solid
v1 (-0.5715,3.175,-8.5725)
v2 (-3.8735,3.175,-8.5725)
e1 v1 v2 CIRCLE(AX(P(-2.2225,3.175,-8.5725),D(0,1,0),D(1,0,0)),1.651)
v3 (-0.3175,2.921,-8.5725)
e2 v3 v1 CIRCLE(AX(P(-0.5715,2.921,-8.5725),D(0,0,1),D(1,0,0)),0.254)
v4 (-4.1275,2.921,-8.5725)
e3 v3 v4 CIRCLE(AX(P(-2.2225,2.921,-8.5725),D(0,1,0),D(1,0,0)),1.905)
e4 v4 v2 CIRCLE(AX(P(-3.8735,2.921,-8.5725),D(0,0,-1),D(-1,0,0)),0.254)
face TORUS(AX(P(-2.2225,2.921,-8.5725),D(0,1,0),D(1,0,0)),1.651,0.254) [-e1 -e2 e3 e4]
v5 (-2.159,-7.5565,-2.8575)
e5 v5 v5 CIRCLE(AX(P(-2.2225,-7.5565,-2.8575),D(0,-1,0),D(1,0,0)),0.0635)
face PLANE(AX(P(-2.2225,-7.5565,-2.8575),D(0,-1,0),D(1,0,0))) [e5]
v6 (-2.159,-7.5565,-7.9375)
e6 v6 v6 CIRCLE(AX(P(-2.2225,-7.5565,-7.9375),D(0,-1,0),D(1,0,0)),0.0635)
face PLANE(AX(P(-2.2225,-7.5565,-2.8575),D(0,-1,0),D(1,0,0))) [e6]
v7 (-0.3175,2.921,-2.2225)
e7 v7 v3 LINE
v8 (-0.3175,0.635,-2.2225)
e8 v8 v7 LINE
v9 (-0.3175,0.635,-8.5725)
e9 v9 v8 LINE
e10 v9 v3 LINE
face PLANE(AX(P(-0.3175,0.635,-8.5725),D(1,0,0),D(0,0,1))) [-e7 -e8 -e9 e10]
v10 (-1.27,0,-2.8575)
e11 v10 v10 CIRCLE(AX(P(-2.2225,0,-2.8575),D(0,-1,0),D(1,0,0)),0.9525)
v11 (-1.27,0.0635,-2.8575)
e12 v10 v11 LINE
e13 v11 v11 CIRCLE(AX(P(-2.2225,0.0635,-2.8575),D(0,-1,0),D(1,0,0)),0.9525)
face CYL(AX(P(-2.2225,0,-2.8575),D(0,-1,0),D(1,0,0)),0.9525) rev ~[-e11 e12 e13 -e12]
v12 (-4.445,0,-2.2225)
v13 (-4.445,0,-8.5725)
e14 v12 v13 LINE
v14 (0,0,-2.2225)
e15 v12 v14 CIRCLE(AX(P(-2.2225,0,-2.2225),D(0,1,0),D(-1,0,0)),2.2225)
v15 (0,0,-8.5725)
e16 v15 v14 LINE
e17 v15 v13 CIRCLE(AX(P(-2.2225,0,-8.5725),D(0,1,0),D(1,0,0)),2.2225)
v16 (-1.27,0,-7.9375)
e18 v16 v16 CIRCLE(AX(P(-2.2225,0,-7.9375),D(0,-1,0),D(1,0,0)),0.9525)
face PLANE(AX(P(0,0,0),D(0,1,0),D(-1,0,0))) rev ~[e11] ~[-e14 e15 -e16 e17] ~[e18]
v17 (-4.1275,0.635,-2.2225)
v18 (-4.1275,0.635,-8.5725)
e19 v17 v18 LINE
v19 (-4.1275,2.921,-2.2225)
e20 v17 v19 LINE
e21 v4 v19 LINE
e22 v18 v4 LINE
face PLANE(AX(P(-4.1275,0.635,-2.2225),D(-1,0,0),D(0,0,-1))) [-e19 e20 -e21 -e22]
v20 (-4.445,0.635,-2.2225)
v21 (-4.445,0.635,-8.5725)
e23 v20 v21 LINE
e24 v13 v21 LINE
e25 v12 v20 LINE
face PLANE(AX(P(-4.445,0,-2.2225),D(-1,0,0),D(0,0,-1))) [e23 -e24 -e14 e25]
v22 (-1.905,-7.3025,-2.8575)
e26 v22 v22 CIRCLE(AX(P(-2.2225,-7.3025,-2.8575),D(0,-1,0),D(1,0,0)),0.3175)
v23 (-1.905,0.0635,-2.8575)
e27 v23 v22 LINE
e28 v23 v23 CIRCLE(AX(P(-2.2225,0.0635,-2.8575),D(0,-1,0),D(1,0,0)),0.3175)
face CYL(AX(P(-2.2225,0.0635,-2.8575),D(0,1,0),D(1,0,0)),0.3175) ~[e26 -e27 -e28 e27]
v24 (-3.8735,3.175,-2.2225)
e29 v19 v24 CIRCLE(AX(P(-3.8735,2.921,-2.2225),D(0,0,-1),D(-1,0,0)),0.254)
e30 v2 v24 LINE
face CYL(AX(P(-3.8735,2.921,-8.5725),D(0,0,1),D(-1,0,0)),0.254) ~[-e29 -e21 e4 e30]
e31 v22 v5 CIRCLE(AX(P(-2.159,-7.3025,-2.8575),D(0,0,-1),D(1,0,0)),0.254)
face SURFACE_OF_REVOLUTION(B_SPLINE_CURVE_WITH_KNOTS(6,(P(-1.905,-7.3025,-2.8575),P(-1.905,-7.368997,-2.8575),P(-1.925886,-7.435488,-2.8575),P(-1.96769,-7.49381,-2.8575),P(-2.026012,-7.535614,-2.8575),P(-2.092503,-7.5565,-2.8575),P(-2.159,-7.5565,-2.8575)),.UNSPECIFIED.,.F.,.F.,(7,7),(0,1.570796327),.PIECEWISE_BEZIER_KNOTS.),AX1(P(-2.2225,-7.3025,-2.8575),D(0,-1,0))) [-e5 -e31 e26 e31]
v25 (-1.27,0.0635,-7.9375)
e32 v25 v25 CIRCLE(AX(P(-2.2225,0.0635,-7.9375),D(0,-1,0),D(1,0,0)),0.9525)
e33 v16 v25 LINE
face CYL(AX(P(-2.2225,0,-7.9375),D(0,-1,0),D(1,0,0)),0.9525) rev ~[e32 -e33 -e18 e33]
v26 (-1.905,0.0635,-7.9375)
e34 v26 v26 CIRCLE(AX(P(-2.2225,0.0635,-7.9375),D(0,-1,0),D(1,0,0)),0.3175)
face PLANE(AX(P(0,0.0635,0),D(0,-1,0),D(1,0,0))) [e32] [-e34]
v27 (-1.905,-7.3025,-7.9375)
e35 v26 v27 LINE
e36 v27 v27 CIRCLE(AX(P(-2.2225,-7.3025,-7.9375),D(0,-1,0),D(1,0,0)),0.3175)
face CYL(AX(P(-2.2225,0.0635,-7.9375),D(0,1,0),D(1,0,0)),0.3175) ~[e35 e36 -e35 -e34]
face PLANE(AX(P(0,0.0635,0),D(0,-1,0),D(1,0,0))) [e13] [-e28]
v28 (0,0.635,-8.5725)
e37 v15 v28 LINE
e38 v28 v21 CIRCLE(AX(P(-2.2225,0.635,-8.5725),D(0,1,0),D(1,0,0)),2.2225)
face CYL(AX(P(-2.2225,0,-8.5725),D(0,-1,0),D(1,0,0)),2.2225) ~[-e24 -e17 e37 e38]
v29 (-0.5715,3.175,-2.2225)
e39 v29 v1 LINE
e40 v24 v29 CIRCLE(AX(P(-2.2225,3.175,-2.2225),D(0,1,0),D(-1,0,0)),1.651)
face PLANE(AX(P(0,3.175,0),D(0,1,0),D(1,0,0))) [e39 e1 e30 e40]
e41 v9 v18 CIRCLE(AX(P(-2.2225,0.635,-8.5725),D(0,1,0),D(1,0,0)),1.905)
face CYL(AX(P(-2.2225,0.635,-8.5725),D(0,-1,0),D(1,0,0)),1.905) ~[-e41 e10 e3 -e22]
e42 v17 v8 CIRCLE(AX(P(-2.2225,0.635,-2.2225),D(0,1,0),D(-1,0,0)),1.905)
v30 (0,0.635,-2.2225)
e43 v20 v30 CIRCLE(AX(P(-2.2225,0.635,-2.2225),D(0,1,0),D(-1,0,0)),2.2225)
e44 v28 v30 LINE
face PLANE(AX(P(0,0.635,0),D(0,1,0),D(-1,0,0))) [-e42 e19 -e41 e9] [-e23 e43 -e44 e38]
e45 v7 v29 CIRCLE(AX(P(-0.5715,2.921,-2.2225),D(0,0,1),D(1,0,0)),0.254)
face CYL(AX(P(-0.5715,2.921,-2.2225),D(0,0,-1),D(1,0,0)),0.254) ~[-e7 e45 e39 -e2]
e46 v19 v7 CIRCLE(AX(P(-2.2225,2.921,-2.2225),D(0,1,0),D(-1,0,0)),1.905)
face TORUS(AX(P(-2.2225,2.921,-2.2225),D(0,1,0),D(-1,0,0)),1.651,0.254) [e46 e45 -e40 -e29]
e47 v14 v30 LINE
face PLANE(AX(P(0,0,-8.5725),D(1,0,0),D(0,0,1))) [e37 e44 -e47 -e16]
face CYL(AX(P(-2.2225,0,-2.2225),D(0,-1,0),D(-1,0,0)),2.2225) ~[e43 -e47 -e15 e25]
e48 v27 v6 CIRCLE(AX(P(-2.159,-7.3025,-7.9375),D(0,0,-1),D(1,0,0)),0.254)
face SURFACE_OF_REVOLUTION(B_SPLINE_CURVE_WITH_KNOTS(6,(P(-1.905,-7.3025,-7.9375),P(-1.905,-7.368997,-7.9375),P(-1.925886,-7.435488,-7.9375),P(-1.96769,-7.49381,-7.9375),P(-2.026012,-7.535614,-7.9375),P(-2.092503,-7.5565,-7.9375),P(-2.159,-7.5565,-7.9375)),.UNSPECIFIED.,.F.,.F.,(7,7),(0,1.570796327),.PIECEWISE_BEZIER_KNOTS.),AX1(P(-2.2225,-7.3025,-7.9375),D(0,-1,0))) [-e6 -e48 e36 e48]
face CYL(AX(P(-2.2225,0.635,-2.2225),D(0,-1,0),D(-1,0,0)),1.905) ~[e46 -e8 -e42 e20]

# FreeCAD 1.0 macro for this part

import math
import FreeCAD as App
import Part
import Sketcher

V = App.Vector
Q = App.Units.Quantity


def edges_at(feature, points):
    """Names of the edges that pass closest to the given points."""
    edges = feature.Shape.Edges
    near = lambda p: min(range(len(edges)), key=lambda i: edges[i].distToShape(Part.Vertex(*p))[0])
    return sorted({f"Edge{near(p) + 1}" for p in points})

doc = App.newDocument("Part")
params = doc.addObject("Spreadsheet::Sheet", "Params")
for row, (alias, value) in enumerate([
    ("sketch1_height", "0.25 in"),
    ("pad1_length", "0.025 in"),
    ("sketch2_radius", "0.075 in"),
    ("sketch2_height", "0.25 in"),
    ("pad2_length", "0.1 in"),
    ("fillet_radius", "0.01 in"),
    ("sketch3_diameter", "0.075 in"),
    ("pocket1_length", "0.0025 in"),
    ("sketch4_diameter", "0.025 in"),
    ("pad3_length", "0.3 in"),
    ("fillet2_radius", "0.01 in"),
], start=1):
    params.set(f"A{row}", alias)
    params.set(f"B{row}", "=" + value)
    params.setAlias(f"B{row}", alias)

body = doc.addObject("PartDesign::Body", "Body")

# Sketch on XZ plane
sketch1 = doc.addObject("Sketcher::SketchObject", "Sketch")
body.addObject(sketch1)
sketch1.AttachmentSupport = (doc.XZ_Plane, [""])
sketch1.MapMode = "FlatFace"
sketch1.addGeometry(Part.LineSegment(V(-4.4, -8.6, 0), V(-4.4, -2.2, 0)), False)
sketch1.addGeometry(Part.ArcOfCircle(Part.Circle(V(-2.2, -2.2, 0), V(0, 0, 1), 2.2), math.radians(0), math.radians(180)), False)
sketch1.addGeometry(Part.LineSegment(V(0, -2.2, 0), V(0, -8.6, 0)), False)
sketch1.addGeometry(Part.ArcOfCircle(Part.Circle(V(-2.2, -8.6, 0), V(0, 0, 1), 2.2), math.radians(180), math.radians(360)), False)
sketch1.addConstraint(Sketcher.Constraint("Tangent", 0, 2, 1, 2))
sketch1.addConstraint(Sketcher.Constraint("Tangent", 1, 1, 2, 1))
sketch1.addConstraint(Sketcher.Constraint("Tangent", 2, 2, 3, 2))
sketch1.addConstraint(Sketcher.Constraint("Tangent", 3, 1, 0, 1))
sketch1.addConstraint(Sketcher.Constraint("Vertical", 0))
sketch1.addConstraint(Sketcher.Constraint("Vertical", 2))
sketch1.addConstraint(Sketcher.Constraint("PointOnObject", 1, 1, -2))
sketch1.addConstraint(Sketcher.Constraint("Radius", 1, Q("0.0875 in")))
sketch1.addConstraint(Sketcher.Constraint("DistanceY", 0, 1, 0, 2, Q("0.25 in")))
sketch1.addConstraint(Sketcher.Constraint("DistanceY", 1, 3, -1, 1, Q("0.0875 in")))
sketch1.setExpression("Constraints[8]", "Params.sketch1_height")
pad1 = doc.addObject("PartDesign::Pad", "Pad")
body.addObject(pad1)
pad1.Profile = sketch1
pad1.setExpression("Length", "Params.pad1_length")
pad1.Reversed = True

# Sketch on XZ plane
sketch2 = doc.addObject("Sketcher::SketchObject", "Sketch001")
body.addObject(sketch2)
sketch2.AttachmentSupport = (doc.XZ_Plane, [""])
sketch2.MapMode = "FlatFace"
sketch2.AttachmentOffset = App.Placement(V(0, 0, -0.025 * 25.4), App.Rotation())
sketch2.addGeometry(Part.LineSegment(V(-4.1, -8.6, 0), V(-4.1, -2.2, 0)), False)
sketch2.addGeometry(Part.ArcOfCircle(Part.Circle(V(-2.2, -2.2, 0), V(0, 0, 1), 1.9), math.radians(0), math.radians(180)), False)
sketch2.addGeometry(Part.LineSegment(V(-0.3, -2.2, 0), V(-0.3, -8.6, 0)), False)
sketch2.addGeometry(Part.ArcOfCircle(Part.Circle(V(-2.2, -8.6, 0), V(0, 0, 1), 1.9), math.radians(180), math.radians(360)), False)
sketch2.addConstraint(Sketcher.Constraint("Tangent", 0, 2, 1, 2))
sketch2.addConstraint(Sketcher.Constraint("Tangent", 1, 1, 2, 1))
sketch2.addConstraint(Sketcher.Constraint("Tangent", 2, 2, 3, 2))
sketch2.addConstraint(Sketcher.Constraint("Tangent", 3, 1, 0, 1))
sketch2.addConstraint(Sketcher.Constraint("Vertical", 0))
sketch2.addConstraint(Sketcher.Constraint("Vertical", 2))
sketch2.addConstraint(Sketcher.Constraint("Radius", 1, Q("0.075 in")))
sketch2.addConstraint(Sketcher.Constraint("DistanceY", 0, 1, 0, 2, Q("0.25 in")))
sketch2.addConstraint(Sketcher.Constraint("DistanceX", 1, 3, -1, 1, Q("0.0875 in")))
sketch2.addConstraint(Sketcher.Constraint("DistanceY", 1, 3, -1, 1, Q("0.0875 in")))
sketch2.setExpression("Constraints[6]", "Params.sketch2_radius")
sketch2.setExpression("Constraints[7]", "Params.sketch2_height")
pad2 = doc.addObject("PartDesign::Pad", "Pad001")
body.addObject(pad2)
pad2.Profile = sketch2
pad2.setExpression("Length", "Params.pad2_length")
pad2.Reversed = True
doc.recompute()

fillet = doc.addObject("PartDesign::Fillet", "Fillet")
body.addObject(fillet)
fillet.Base = (pad2, edges_at(pad2, [
    (-2.223, 3.175, -10.477),
    (-4.128, 3.175, -5.397),
    (-2.223, 3.175, -0.318),
    (-0.318, 3.175, -5.397),
]))
fillet.setExpression("Radius", "Params.fillet_radius")

# Sketch on XZ plane
sketch3 = doc.addObject("Sketcher::SketchObject", "Sketch002")
body.addObject(sketch3)
sketch3.AttachmentSupport = (doc.XZ_Plane, [""])
sketch3.MapMode = "FlatFace"
sketch3.addGeometry(Part.Circle(V(-2.2, -2.9, 0), V(0, 0, 1), 1), False)
sketch3.addGeometry(Part.Circle(V(-2.2, -7.9, 0), V(0, 0, 1), 1), False)
sketch3.addConstraint(Sketcher.Constraint("Equal", 0, 1))
sketch3.addConstraint(Sketcher.Constraint("Vertical", 0, 3, 1, 3))
sketch3.addConstraint(Sketcher.Constraint("Diameter", 0, Q("0.075 in")))
sketch3.addConstraint(Sketcher.Constraint("DistanceY", 1, 3, 0, 3, Q("0.2 in")))
sketch3.addConstraint(Sketcher.Constraint("DistanceY", 1, 3, -1, 1, Q("0.3125 in")))
sketch3.addConstraint(Sketcher.Constraint("DistanceX", 0, 3, -1, 1, Q("0.0875 in")))
sketch3.setExpression("Constraints[2]", "Params.sketch3_diameter")
pocket1 = doc.addObject("PartDesign::Pocket", "Pocket")
body.addObject(pocket1)
pocket1.Profile = sketch3
pocket1.setExpression("Length", "Params.pocket1_length")

# Sketch on XZ plane
sketch4 = doc.addObject("Sketcher::SketchObject", "Sketch003")
body.addObject(sketch4)
sketch4.AttachmentSupport = (doc.XZ_Plane, [""])
sketch4.MapMode = "FlatFace"
sketch4.AttachmentOffset = App.Placement(V(0, 0, -0.0025 * 25.4), App.Rotation())
sketch4.addGeometry(Part.Circle(V(-2.22, -2.86, 0), V(0, 0, 1), 0.32), False)
sketch4.addGeometry(Part.Circle(V(-2.22, -7.94, 0), V(0, 0, 1), 0.32), False)
sketch4.addConstraint(Sketcher.Constraint("Equal", 0, 1))
sketch4.addConstraint(Sketcher.Constraint("Vertical", 0, 3, 1, 3))
sketch4.addConstraint(Sketcher.Constraint("Diameter", 0, Q("0.025 in")))
sketch4.addConstraint(Sketcher.Constraint("DistanceY", 1, 3, 0, 3, Q("0.2 in")))
sketch4.addConstraint(Sketcher.Constraint("DistanceY", 1, 3, -1, 1, Q("0.3125 in")))
sketch4.addConstraint(Sketcher.Constraint("DistanceX", 0, 3, -1, 1, Q("0.0875 in")))
sketch4.setExpression("Constraints[2]", "Params.sketch4_diameter")
pad3 = doc.addObject("PartDesign::Pad", "Pad002")
body.addObject(pad3)
pad3.Profile = sketch4
pad3.setExpression("Length", "Params.pad3_length")
doc.recompute()

fillet2 = doc.addObject("PartDesign::Fillet", "Fillet001")
body.addObject(fillet2)
fillet2.Base = (pad3, edges_at(pad3, [(-2.54, -7.556, -2.857), (-2.54, -7.556, -7.938)]))
fillet2.setExpression("Radius", "Params.fillet2_radius")

doc.recompute()
